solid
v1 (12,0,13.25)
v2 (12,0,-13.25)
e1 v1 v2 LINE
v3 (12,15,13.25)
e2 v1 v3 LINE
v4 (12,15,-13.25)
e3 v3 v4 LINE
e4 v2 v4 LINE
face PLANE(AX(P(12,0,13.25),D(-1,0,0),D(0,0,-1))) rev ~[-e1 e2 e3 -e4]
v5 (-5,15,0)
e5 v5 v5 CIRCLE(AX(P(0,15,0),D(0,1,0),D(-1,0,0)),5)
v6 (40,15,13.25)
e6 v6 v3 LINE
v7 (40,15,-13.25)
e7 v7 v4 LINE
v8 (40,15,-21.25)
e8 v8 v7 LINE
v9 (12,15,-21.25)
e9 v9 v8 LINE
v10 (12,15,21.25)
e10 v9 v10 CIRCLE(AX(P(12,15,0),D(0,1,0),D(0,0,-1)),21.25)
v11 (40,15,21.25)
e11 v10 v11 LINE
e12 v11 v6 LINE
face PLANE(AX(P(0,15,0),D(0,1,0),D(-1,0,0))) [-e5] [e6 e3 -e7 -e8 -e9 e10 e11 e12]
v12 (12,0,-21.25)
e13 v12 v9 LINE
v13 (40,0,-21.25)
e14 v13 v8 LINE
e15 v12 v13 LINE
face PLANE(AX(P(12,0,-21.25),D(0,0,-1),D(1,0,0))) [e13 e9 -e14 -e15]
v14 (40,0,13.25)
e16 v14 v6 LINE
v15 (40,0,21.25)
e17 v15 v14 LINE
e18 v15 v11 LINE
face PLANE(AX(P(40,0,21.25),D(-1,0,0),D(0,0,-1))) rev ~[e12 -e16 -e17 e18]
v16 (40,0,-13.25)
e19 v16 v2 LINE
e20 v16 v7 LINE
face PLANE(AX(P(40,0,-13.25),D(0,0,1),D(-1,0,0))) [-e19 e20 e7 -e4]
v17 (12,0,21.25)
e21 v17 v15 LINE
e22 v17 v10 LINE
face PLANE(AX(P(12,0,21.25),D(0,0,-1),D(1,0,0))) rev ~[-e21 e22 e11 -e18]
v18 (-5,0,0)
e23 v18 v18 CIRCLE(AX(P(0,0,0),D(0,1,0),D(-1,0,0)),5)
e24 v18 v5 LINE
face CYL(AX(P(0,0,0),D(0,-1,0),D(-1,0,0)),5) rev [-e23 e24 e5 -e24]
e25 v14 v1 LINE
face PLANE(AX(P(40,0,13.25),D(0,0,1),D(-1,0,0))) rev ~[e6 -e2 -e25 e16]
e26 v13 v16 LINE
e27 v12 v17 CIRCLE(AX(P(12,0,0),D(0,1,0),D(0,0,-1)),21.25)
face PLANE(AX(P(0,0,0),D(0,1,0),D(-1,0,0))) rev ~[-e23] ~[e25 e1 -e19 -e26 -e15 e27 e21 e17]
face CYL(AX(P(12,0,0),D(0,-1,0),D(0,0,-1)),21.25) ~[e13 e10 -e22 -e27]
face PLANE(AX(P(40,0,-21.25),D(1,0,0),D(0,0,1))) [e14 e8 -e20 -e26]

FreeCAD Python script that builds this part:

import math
import FreeCAD as App
import Part
import Sketcher

doc = App.newDocument("Part")
params = doc.addObject("Spreadsheet::Sheet", "Params")
for row, (alias, value) in enumerate([
    ("sketch1_diameter", "10 mm"),
    ("sketch1_width", "28 mm"),
    ("sketch1_height", "8 mm"),
    ("sketch1_radius", "21.25 mm"),
    ("pad1_length", "15 mm"),
], start=1):
    params.set(f"A{row}", alias)
    params.set(f"B{row}", "=" + value)
    params.setAlias(f"B{row}", alias)

body = doc.addObject("PartDesign::Body", "Body")

# Sketch on XZ plane
sketch1 = body.newObject("Sketcher::SketchObject", "Sketch")
sketch1.AttachmentSupport = (doc.getObject("XZ_Plane"), [""])
sketch1.MapMode = "FlatFace"
sketch1.addGeometry(Part.LineSegment(App.Vector(40, 13.25, 0), App.Vector(12, 13.25, 0)), False)
sketch1.addGeometry(Part.LineSegment(App.Vector(12, 13.25, 0), App.Vector(12, -13.25, 0)), False)
sketch1.addGeometry(Part.LineSegment(App.Vector(12, -13.25, 0), App.Vector(40, -13.25, 0)), False)
sketch1.addGeometry(Part.LineSegment(App.Vector(40, -13.25, 0), App.Vector(40, -21.25, 0)), False)
sketch1.addGeometry(Part.LineSegment(App.Vector(40, -21.25, 0), App.Vector(12, -21.25, 0)), False)
sketch1.addGeometry(Part.ArcOfCircle(Part.Circle(App.Vector(12, 0, 0), App.Vector(0, 0, 1), 21.25), math.radians(90), math.radians(270)), False)
sketch1.addGeometry(Part.LineSegment(App.Vector(12, 21.25, 0), App.Vector(40, 21.25, 0)), False)
sketch1.addGeometry(Part.LineSegment(App.Vector(40, 21.25, 0), App.Vector(40, 13.25, 0)), False)
sketch1.addGeometry(Part.Circle(App.Vector(0, 0, 0), App.Vector(0, 0, 1), 5), False)
sketch1.addConstraint(Sketcher.Constraint("Coincident", 0, 2, 1, 1))
sketch1.addConstraint(Sketcher.Constraint("Coincident", 1, 2, 2, 1))
sketch1.addConstraint(Sketcher.Constraint("Coincident", 2, 2, 3, 1))
sketch1.addConstraint(Sketcher.Constraint("Coincident", 3, 2, 4, 1))
sketch1.addConstraint(Sketcher.Constraint("Tangent", 4, 2, 5, 2))
sketch1.addConstraint(Sketcher.Constraint("Tangent", 5, 1, 6, 1))
sketch1.addConstraint(Sketcher.Constraint("Coincident", 6, 2, 7, 1))
sketch1.addConstraint(Sketcher.Constraint("Coincident", 7, 2, 0, 1))
sketch1.addConstraint(Sketcher.Constraint("Horizontal", 0))
sketch1.addConstraint(Sketcher.Constraint("Vertical", 1))
sketch1.addConstraint(Sketcher.Constraint("Horizontal", 2))
sketch1.addConstraint(Sketcher.Constraint("Vertical", 3))
sketch1.addConstraint(Sketcher.Constraint("Horizontal", 4))
sketch1.addConstraint(Sketcher.Constraint("Horizontal", 6))
sketch1.addConstraint(Sketcher.Constraint("Vertical", 7))
sketch1.addConstraint(Sketcher.Constraint("Coincident", 8, 3, -1, 1))
sketch1.addConstraint(Sketcher.Constraint("Symmetric", 3, 2, 6, 2, -1))
sketch1.addConstraint(Sketcher.Constraint("Vertical", 5, 3, 0, 2))
sketch1.addConstraint(Sketcher.Constraint("Equal", 3, 7))
sketch1.addConstraint(Sketcher.Constraint("Diameter", 8, 10.0))
sketch1.addConstraint(Sketcher.Constraint("DistanceX", 0, 2, 0, 1, 28.0))
sketch1.addConstraint(Sketcher.Constraint("DistanceY", 3, 2, 3, 1, 8.0))
sketch1.addConstraint(Sketcher.Constraint("Radius", 5, 21.25))
sketch1.addConstraint(Sketcher.Constraint("DistanceX", -1, 1, 5, 3, 12.0))
sketch1.setExpression("Constraints[19]", "Params.sketch1_diameter")
sketch1.setExpression("Constraints[20]", "Params.sketch1_width")
sketch1.setExpression("Constraints[21]", "Params.sketch1_height")
sketch1.setExpression("Constraints[22]", "Params.sketch1_radius")
pad1 = body.newObject("PartDesign::Pad", "Pad")
pad1.Profile = sketch1
pad1.setExpression("Length", "Params.pad1_length")
pad1.Reversed = True

doc.recompute()
